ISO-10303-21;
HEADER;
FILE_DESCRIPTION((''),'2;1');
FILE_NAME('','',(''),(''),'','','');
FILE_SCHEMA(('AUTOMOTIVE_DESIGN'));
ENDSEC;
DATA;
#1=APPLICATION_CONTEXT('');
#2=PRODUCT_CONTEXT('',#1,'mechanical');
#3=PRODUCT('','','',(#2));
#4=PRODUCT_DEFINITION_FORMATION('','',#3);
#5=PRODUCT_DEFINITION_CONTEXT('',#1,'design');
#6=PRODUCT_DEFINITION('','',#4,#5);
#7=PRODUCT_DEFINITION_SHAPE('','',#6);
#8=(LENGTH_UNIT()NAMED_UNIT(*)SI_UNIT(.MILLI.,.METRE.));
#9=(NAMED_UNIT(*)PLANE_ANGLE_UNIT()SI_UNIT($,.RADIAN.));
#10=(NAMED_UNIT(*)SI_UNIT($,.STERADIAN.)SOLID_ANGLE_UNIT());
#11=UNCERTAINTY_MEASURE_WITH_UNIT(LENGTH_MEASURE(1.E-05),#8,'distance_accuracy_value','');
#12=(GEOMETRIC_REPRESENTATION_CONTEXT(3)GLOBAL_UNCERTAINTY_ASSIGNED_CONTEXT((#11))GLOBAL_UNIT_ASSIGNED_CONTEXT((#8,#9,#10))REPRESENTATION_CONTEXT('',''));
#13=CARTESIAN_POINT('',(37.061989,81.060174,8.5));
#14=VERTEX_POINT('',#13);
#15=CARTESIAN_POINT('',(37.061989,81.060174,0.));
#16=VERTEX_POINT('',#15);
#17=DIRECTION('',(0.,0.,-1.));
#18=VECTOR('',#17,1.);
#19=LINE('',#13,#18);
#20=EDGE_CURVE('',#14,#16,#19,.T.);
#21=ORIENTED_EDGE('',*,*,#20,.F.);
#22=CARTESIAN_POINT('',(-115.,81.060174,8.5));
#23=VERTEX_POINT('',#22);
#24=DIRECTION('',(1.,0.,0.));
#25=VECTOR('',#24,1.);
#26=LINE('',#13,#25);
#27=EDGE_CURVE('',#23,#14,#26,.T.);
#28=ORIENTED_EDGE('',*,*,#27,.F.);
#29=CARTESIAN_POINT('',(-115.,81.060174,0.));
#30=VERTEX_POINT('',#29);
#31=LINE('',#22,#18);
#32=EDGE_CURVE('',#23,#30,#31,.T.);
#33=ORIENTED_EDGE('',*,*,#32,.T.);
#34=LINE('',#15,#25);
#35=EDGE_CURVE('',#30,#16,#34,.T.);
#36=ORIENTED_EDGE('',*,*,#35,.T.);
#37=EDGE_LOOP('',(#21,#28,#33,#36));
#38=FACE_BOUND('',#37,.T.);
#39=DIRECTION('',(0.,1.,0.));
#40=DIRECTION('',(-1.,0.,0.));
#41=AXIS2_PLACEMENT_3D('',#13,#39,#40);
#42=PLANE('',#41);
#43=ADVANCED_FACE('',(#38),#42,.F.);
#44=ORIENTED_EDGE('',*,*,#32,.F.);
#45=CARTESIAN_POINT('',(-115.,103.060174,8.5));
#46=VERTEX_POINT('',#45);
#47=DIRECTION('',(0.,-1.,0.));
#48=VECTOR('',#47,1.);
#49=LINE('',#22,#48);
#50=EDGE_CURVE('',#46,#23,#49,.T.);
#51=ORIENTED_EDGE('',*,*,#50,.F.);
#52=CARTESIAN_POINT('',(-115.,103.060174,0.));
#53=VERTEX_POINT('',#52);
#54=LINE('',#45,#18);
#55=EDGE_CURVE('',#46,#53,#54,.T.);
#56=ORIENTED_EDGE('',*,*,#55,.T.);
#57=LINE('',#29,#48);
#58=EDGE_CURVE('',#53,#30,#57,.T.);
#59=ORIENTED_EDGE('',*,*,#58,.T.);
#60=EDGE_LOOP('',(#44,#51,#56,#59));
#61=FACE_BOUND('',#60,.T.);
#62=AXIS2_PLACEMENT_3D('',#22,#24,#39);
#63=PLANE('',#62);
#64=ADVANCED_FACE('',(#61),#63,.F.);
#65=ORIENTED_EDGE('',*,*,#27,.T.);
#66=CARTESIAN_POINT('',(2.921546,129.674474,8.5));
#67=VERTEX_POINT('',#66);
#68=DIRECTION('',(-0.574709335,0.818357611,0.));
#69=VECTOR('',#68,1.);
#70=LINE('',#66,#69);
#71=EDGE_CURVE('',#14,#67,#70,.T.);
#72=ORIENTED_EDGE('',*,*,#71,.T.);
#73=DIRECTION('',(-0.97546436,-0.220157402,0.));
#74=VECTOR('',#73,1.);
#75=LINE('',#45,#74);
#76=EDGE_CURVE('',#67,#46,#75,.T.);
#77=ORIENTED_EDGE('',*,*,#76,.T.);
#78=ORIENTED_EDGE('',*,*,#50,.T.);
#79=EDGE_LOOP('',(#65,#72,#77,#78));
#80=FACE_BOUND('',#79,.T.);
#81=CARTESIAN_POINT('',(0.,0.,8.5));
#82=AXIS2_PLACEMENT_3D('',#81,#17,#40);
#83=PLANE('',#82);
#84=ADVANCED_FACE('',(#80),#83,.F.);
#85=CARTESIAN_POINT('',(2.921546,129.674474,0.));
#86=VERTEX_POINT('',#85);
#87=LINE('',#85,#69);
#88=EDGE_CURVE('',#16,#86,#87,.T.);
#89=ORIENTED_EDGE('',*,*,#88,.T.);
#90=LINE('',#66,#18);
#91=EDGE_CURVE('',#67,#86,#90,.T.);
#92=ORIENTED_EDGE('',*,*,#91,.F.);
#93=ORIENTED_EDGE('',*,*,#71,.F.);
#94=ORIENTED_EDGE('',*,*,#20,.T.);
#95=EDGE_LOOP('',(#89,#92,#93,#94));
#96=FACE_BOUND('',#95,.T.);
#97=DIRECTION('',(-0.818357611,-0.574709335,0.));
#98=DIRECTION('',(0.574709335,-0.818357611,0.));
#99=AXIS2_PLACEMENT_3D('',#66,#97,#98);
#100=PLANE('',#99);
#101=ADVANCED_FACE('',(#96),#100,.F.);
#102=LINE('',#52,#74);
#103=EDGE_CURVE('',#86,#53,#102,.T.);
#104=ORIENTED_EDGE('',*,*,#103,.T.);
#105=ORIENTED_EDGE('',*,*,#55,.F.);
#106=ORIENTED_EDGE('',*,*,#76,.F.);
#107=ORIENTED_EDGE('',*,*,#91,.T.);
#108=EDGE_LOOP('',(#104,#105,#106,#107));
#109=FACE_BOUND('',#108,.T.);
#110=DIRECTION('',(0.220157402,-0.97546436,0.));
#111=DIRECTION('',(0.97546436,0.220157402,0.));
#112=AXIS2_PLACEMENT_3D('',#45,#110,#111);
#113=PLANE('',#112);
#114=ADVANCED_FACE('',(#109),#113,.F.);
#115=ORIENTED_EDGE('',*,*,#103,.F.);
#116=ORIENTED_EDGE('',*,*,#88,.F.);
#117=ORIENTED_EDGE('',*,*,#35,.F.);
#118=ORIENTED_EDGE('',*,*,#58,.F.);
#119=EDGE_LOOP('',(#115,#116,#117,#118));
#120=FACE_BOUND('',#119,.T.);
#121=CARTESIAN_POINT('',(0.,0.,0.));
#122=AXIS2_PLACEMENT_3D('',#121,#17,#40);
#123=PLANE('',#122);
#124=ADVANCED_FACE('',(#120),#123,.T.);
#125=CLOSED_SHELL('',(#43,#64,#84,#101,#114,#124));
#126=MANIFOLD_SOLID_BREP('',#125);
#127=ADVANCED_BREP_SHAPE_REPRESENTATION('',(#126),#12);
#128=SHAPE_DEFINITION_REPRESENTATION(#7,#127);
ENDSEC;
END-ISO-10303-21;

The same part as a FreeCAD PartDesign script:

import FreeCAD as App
import Part
import Sketcher
from FreeCAD import Vector

doc = App.newDocument("Part")
params = doc.addObject("Spreadsheet::Sheet", "Params")
for row, (alias, value) in enumerate([
    ("sketch1_height", "22 mm"),
    ("pad1_length", "8.5 mm"),
], start=1):
    params.set(f"A{row}", alias)
    params.set(f"B{row}", "=" + value)
    params.setAlias(f"B{row}", alias)

body = doc.addObject("PartDesign::Body", "Body")

# Sketch on XY plane
sketch1 = doc.addObject("Sketcher::SketchObject", "Sketch")
body.addObject(sketch1)
sketch1.AttachmentSupport = (doc.XY_Plane, [""])
sketch1.MapMode = "FlatFace"
sketch1.addGeometry([
    Part.LineSegment(Vector(-115, 103, 0), Vector(-115, 81, 0)),
    Part.LineSegment(Vector(-115, 81, 0), Vector(37, 81, 0)),
    Part.LineSegment(Vector(37, 81, 0), Vector(3, 130, 0)),
    Part.LineSegment(Vector(3, 130, 0), Vector(-115, 103, 0)),
], False)
sketch1.addConstraint([
    Sketcher.Constraint("Coincident", 0, 2, 1, 1),
    Sketcher.Constraint("Coincident", 1, 2, 2, 1),
    Sketcher.Constraint("Coincident", 2, 2, 3, 1),
    Sketcher.Constraint("Coincident", 3, 2, 0, 1),
    Sketcher.Constraint("Vertical", 0),
    Sketcher.Constraint("Horizontal", 1),
    Sketcher.Constraint("DistanceY", 0, 2, 0, 1, 22.0),
    Sketcher.Constraint("DistanceX", 0, 2, -1, 1, 115.0),
    Sketcher.Constraint("Distance", 3, 120.8876),
    Sketcher.Constraint("DistanceX", 1, 1, 1, 2, 152.061989),
    Sketcher.Constraint("DistanceY", 1, 2, 2, 2, 48.6143),
    Sketcher.Constraint("DistanceY", -1, 1, 0, 2, 81.060174),
])
sketch1.setExpression("Constraints[6]", "Params.sketch1_height")
pad1 = doc.addObject("PartDesign::Pad", "Pad")
body.addObject(pad1)
pad1.Profile = sketch1
pad1.setExpression("Length", "Params.pad1_length")

doc.recompute()
